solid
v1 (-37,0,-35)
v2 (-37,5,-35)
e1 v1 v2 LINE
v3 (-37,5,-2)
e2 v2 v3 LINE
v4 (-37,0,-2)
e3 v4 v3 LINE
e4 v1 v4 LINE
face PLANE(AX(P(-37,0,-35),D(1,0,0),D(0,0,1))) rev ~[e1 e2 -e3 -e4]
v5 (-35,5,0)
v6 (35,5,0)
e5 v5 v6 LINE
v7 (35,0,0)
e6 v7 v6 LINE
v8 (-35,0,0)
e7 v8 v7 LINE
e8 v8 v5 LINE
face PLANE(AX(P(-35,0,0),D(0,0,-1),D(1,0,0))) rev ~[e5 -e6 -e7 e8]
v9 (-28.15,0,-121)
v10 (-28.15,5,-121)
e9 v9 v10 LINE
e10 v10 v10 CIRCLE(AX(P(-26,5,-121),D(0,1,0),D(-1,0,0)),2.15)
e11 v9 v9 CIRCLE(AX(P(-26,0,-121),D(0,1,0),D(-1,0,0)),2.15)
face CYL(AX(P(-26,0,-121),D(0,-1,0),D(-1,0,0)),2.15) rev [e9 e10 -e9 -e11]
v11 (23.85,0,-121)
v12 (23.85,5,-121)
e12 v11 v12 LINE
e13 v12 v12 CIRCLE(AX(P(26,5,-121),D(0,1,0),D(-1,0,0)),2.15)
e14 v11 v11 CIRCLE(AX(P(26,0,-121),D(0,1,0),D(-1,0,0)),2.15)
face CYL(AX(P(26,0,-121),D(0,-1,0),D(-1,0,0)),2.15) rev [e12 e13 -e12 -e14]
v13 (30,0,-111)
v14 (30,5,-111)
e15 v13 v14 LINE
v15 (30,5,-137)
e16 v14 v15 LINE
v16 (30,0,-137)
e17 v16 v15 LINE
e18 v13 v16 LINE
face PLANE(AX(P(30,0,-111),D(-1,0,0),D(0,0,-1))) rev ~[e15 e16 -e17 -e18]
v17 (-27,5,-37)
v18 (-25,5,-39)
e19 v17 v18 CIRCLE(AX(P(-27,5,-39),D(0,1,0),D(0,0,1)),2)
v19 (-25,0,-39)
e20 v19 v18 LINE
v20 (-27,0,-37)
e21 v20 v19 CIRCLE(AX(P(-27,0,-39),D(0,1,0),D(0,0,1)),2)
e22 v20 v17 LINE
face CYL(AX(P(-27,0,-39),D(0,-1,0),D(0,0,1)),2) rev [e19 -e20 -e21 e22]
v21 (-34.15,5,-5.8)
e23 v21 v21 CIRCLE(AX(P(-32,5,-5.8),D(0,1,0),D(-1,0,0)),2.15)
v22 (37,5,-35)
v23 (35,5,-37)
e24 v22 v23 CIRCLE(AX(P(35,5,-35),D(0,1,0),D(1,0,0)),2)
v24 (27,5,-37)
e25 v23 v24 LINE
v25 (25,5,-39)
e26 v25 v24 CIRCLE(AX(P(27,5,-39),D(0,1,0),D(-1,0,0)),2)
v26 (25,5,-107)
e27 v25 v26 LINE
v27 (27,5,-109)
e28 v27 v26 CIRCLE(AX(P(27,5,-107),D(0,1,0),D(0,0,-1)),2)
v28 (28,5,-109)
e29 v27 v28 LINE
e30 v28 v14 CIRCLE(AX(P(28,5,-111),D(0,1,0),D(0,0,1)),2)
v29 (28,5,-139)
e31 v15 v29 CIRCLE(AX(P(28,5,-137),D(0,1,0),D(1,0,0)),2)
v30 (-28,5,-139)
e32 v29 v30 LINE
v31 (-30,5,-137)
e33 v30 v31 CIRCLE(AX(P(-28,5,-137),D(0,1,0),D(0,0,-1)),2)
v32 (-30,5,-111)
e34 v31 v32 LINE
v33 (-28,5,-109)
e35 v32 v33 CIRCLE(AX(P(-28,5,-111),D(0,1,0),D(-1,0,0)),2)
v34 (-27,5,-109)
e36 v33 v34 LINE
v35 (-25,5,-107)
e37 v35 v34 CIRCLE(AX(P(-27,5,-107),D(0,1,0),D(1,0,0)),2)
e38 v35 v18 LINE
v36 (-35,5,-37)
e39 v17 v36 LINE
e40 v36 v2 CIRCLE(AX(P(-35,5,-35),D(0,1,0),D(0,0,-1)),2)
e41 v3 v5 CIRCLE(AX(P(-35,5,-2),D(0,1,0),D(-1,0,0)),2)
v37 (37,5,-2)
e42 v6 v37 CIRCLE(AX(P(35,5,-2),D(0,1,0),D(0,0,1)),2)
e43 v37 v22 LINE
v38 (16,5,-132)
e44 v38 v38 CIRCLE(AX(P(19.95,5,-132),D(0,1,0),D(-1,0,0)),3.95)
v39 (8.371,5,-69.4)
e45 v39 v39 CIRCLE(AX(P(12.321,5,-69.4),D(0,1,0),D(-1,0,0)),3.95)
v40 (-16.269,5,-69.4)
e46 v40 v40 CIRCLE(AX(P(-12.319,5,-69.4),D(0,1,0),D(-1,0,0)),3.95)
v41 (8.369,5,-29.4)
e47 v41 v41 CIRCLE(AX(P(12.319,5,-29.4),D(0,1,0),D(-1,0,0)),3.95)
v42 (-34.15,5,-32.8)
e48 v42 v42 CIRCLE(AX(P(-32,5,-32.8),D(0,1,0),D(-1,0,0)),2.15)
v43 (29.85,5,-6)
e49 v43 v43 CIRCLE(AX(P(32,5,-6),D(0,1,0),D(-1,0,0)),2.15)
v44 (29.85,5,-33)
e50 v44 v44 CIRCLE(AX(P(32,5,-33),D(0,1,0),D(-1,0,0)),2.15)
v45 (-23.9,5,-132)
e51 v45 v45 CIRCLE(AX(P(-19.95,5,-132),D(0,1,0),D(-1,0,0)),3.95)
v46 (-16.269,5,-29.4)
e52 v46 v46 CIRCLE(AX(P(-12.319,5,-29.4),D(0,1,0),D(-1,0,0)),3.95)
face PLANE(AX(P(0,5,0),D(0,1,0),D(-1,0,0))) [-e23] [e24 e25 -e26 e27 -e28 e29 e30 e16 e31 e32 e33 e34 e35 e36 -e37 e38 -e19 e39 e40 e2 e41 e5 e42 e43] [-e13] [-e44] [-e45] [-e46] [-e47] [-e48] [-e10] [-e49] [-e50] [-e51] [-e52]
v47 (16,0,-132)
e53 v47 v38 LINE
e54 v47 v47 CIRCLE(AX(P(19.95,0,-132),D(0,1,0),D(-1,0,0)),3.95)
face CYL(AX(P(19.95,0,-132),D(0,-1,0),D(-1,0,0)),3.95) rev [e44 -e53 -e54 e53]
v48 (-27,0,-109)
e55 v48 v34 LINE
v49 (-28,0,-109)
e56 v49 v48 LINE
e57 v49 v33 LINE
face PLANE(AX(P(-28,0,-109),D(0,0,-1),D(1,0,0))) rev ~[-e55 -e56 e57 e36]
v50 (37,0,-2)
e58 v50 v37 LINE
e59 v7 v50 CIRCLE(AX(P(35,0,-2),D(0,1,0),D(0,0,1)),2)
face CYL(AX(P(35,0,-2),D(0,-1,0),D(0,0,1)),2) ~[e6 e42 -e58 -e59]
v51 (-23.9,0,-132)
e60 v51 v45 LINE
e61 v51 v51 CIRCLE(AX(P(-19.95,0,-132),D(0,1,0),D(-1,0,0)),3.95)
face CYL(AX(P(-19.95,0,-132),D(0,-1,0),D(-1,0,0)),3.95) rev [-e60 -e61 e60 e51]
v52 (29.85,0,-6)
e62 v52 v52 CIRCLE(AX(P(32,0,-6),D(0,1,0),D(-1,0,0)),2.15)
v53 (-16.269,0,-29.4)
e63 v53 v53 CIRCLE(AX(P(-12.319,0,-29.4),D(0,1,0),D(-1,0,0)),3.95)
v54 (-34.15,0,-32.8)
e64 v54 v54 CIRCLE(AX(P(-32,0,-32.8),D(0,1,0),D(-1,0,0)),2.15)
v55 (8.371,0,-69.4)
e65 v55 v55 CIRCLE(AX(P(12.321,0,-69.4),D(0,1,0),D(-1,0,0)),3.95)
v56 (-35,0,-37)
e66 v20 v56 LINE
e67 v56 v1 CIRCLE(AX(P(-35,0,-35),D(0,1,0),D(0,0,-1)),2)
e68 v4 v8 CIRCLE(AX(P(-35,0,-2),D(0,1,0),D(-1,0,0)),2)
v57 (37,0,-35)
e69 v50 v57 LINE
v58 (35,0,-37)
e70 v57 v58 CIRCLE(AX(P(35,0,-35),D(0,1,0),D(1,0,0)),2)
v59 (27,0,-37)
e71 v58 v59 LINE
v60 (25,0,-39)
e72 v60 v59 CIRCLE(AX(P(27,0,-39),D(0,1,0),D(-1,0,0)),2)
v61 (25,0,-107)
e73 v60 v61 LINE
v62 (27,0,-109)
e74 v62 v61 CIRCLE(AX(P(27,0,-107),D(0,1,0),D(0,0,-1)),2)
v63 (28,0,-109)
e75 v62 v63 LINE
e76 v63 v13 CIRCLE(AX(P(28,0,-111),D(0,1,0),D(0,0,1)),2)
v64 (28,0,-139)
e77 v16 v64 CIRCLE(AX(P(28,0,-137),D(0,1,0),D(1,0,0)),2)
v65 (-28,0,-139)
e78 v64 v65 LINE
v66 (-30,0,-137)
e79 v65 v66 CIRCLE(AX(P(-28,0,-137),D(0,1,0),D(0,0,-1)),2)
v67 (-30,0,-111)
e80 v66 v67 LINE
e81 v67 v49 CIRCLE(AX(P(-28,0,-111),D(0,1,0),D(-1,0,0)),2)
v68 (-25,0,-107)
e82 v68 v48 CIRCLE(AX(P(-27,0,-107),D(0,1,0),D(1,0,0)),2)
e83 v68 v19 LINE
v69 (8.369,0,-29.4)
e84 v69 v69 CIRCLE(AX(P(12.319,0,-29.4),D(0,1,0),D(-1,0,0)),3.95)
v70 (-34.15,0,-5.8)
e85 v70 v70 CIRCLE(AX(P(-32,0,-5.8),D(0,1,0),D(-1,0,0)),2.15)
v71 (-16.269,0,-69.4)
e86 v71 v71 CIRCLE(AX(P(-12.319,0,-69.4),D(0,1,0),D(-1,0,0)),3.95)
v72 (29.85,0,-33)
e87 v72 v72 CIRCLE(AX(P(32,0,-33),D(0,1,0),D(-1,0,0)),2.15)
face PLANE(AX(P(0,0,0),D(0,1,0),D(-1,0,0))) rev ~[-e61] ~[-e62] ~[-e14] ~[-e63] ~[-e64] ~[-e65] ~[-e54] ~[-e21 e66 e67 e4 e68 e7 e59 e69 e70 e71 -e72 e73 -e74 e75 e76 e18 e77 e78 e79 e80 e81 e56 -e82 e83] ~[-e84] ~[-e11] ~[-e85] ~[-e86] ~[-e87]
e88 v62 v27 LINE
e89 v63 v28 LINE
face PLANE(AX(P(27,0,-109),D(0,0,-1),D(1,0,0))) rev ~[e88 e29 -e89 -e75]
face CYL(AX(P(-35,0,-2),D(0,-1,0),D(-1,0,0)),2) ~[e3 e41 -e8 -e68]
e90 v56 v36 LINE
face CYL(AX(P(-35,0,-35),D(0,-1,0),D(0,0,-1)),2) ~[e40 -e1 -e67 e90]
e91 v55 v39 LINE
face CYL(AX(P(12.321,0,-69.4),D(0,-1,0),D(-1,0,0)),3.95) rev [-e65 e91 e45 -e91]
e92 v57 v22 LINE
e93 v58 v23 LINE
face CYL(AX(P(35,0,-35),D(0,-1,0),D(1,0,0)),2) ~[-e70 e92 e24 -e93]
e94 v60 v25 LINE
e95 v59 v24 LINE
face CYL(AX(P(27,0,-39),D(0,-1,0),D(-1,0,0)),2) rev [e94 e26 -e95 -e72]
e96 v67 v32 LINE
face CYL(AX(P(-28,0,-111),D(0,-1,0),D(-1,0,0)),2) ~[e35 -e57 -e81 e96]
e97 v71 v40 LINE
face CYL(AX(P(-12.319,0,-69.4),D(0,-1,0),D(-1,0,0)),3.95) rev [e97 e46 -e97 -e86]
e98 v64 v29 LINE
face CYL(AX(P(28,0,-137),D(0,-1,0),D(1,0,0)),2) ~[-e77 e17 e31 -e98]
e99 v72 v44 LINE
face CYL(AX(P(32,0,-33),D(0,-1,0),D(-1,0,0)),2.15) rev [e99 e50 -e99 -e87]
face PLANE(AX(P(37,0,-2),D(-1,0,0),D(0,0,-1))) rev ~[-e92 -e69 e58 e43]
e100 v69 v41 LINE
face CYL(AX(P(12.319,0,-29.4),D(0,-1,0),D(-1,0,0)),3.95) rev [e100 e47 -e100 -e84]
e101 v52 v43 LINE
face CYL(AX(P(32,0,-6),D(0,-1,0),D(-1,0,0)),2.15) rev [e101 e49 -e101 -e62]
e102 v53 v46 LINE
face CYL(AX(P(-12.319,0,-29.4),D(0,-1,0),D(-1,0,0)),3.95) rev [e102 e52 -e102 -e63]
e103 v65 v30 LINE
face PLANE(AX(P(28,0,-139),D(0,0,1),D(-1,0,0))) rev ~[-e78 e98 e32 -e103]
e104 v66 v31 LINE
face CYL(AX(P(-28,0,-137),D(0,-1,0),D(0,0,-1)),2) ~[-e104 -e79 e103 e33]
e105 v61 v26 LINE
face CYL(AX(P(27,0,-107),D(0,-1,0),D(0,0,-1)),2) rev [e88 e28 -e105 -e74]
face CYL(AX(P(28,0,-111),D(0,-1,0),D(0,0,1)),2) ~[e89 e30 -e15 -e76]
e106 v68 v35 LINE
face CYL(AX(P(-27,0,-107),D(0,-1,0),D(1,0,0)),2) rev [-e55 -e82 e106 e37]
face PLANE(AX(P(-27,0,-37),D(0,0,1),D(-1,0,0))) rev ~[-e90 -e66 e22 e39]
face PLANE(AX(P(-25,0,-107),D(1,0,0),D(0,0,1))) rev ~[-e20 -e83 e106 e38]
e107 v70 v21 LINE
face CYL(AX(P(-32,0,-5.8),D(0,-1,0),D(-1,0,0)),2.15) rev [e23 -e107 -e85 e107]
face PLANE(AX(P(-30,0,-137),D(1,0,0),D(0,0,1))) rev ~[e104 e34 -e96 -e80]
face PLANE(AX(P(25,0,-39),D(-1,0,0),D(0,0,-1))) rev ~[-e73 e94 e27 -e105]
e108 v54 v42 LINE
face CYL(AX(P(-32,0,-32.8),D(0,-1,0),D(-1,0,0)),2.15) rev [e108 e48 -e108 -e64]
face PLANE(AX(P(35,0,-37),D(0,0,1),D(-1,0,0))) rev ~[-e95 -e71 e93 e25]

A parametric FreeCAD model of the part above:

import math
import FreeCAD as App
import Part
import Sketcher
Q = App.Units.Quantity

doc = App.newDocument("Part")
params = doc.addObject("Spreadsheet::Sheet", "Params")
for row, (alias, value) in enumerate([
    ("sketch1_radius", "2 mm"),
    ("sketch1_diameter", "7.9 mm"),
    ("sketch1_diameter2", "4.3 mm"),
    ("pad1_length", "5 mm"),
], start=1):
    params.set(f"A{row}", alias)
    params.set(f"B{row}", "=" + value)
    params.setAlias(f"B{row}", alias)

body = doc.addObject("PartDesign::Body", "Body")

sketch1 = doc.addObject("Sketcher::SketchObject", "Sketch")
body.addObject(sketch1)
sketch1.AttachmentSupport = (doc.XZ_Plane, [""])
sketch1.MapMode = "FlatFace"
sketch1.addGeometry(Part.ArcOfCircle(Part.Circle(App.Vector(-35, -2, 0), App.Vector(0, 0, 1), 2), math.radians(90), math.radians(180)), False)
sketch1.addGeometry(Part.LineSegment(App.Vector(-35, 0, 0), App.Vector(35, 0, 0)), False)
sketch1.addGeometry(Part.ArcOfCircle(Part.Circle(App.Vector(35, -2, 0), App.Vector(0, 0, 1), 2), math.radians(0), math.radians(90)), False)
sketch1.addGeometry(Part.LineSegment(App.Vector(37, -2, 0), App.Vector(37, -35, 0)), False)
sketch1.addGeometry(Part.ArcOfCircle(Part.Circle(App.Vector(35, -35, 0), App.Vector(0, 0, 1), 2), math.radians(-90), math.radians(0)), False)
sketch1.addGeometry(Part.LineSegment(App.Vector(35, -37, 0), App.Vector(27, -37, 0)), False)
sketch1.addGeometry(Part.ArcOfCircle(Part.Circle(App.Vector(27, -39, 0), App.Vector(0, 0, 1), 2), math.radians(90), math.radians(180)), False)
sketch1.addGeometry(Part.LineSegment(App.Vector(25, -39, 0), App.Vector(25, -107, 0)), False)
sketch1.addGeometry(Part.ArcOfCircle(Part.Circle(App.Vector(27, -107, 0), App.Vector(0, 0, 1), 2), math.radians(180), math.radians(270)), False)
sketch1.addGeometry(Part.LineSegment(App.Vector(27, -109, 0), App.Vector(28, -109, 0)), False)
sketch1.addGeometry(Part.ArcOfCircle(Part.Circle(App.Vector(28, -111, 0), App.Vector(0, 0, 1), 2), math.radians(0), math.radians(90)), False)
sketch1.addGeometry(Part.LineSegment(App.Vector(30, -111, 0), App.Vector(30, -137, 0)), False)
sketch1.addGeometry(Part.ArcOfCircle(Part.Circle(App.Vector(28, -137, 0), App.Vector(0, 0, 1), 2), math.radians(-90), math.radians(0)), False)
sketch1.addGeometry(Part.LineSegment(App.Vector(28, -139, 0), App.Vector(-28, -139, 0)), False)
sketch1.addGeometry(Part.ArcOfCircle(Part.Circle(App.Vector(-28, -137, 0), App.Vector(0, 0, 1), 2), math.radians(180), math.radians(270)), False)
sketch1.addGeometry(Part.LineSegment(App.Vector(-30, -137, 0), App.Vector(-30, -111, 0)), False)
sketch1.addGeometry(Part.ArcOfCircle(Part.Circle(App.Vector(-28, -111, 0), App.Vector(0, 0, 1), 2), math.radians(90), math.radians(180)), False)
sketch1.addGeometry(Part.LineSegment(App.Vector(-28, -109, 0), App.Vector(-27, -109, 0)), False)
sketch1.addGeometry(Part.ArcOfCircle(Part.Circle(App.Vector(-27, -107, 0), App.Vector(0, 0, 1), 2), math.radians(-90), math.radians(0)), False)
sketch1.addGeometry(Part.LineSegment(App.Vector(-25, -107, 0), App.Vector(-25, -39, 0)), False)
sketch1.addGeometry(Part.ArcOfCircle(Part.Circle(App.Vector(-27, -39, 0), App.Vector(0, 0, 1), 2), math.radians(0), math.radians(90)), False)
sketch1.addGeometry(Part.LineSegment(App.Vector(-27, -37, 0), App.Vector(-35, -37, 0)), False)
sketch1.addGeometry(Part.ArcOfCircle(Part.Circle(App.Vector(-35, -35, 0), App.Vector(0, 0, 1), 2), math.radians(180), math.radians(270)), False)
sketch1.addGeometry(Part.LineSegment(App.Vector(-37, -35, 0), App.Vector(-37, -2, 0)), False)
sketch1.addGeometry(Part.Circle(App.Vector(19.95, -132, 0), App.Vector(0, 0, 1), 3.95), False)
sketch1.addGeometry(Part.Circle(App.Vector(26, -121, 0), App.Vector(0, 0, 1), 2.15), False)
sketch1.addGeometry(Part.Circle(App.Vector(-19.95, -132, 0), App.Vector(0, 0, 1), 3.95), False)
sketch1.addGeometry(Part.Circle(App.Vector(-26, -121, 0), App.Vector(0, 0, 1), 2.15), False)
sketch1.addGeometry(Part.Circle(App.Vector(12.321, -69.4, 0), App.Vector(0, 0, 1), 3.95), False)
sketch1.addGeometry(Part.Circle(App.Vector(32, -33, 0), App.Vector(0, 0, 1), 2.15), False)
sketch1.addGeometry(Part.Circle(App.Vector(32, -6, 0), App.Vector(0, 0, 1), 2.15), False)
sketch1.addGeometry(Part.Circle(App.Vector(12.319, -29.4, 0), App.Vector(0, 0, 1), 3.95), False)
sketch1.addGeometry(Part.Circle(App.Vector(-12.319, -69.4, 0), App.Vector(0, 0, 1), 3.95), False)
sketch1.addGeometry(Part.Circle(App.Vector(-12.319, -29.4, 0), App.Vector(0, 0, 1), 3.95), False)
sketch1.addGeometry(Part.Circle(App.Vector(-32, -32.8, 0), App.Vector(0, 0, 1), 2.15), False)
sketch1.addGeometry(Part.Circle(App.Vector(-32, -5.8, 0), App.Vector(0, 0, 1), 2.15), False)
sketch1.addConstraint(Sketcher.Constraint("Tangent", 0, 1, 1, 1))
sketch1.addConstraint(Sketcher.Constraint("Tangent", 1, 2, 2, 2))
sketch1.addConstraint(Sketcher.Constraint("Tangent", 2, 1, 3, 1))
sketch1.addConstraint(Sketcher.Constraint("Tangent", 3, 2, 4, 2))
sketch1.addConstraint(Sketcher.Constraint("Tangent", 4, 1, 5, 1))
sketch1.addConstraint(Sketcher.Constraint("Tangent", 5, 2, 6, 1))
sketch1.addConstraint(Sketcher.Constraint("Tangent", 6, 2, 7, 1))
sketch1.addConstraint(Sketcher.Constraint("Tangent", 7, 2, 8, 1))
sketch1.addConstraint(Sketcher.Constraint("Tangent", 8, 2, 9, 1))
sketch1.addConstraint(Sketcher.Constraint("Tangent", 9, 2, 10, 2))
sketch1.addConstraint(Sketcher.Constraint("Tangent", 10, 1, 11, 1))
sketch1.addConstraint(Sketcher.Constraint("Tangent", 11, 2, 12, 2))
sketch1.addConstraint(Sketcher.Constraint("Tangent", 12, 1, 13, 1))
sketch1.addConstraint(Sketcher.Constraint("Tangent", 13, 2, 14, 2))
sketch1.addConstraint(Sketcher.Constraint("Tangent", 14, 1, 15, 1))
sketch1.addConstraint(Sketcher.Constraint("Tangent", 15, 2, 16, 2))
sketch1.addConstraint(Sketcher.Constraint("Tangent", 16, 1, 17, 1))
sketch1.addConstraint(Sketcher.Constraint("Tangent", 17, 2, 18, 1))
sketch1.addConstraint(Sketcher.Constraint("Tangent", 18, 2, 19, 1))
sketch1.addConstraint(Sketcher.Constraint("Tangent", 19, 2, 20, 1))
sketch1.addConstraint(Sketcher.Constraint("Tangent", 20, 2, 21, 1))
sketch1.addConstraint(Sketcher.Constraint("Tangent", 21, 2, 22, 2))
sketch1.addConstraint(Sketcher.Constraint("Tangent", 22, 1, 23, 1))
sketch1.addConstraint(Sketcher.Constraint("Tangent", 23, 2, 0, 2))
sketch1.addConstraint(Sketcher.Constraint("Horizontal", 1))
sketch1.addConstraint(Sketcher.Constraint("Vertical", 3))
sketch1.addConstraint(Sketcher.Constraint("Horizontal", 5))
sketch1.addConstraint(Sketcher.Constraint("Vertical", 7))
sketch1.addConstraint(Sketcher.Constraint("Horizontal", 9))
sketch1.addConstraint(Sketcher.Constraint("Vertical", 11))
sketch1.addConstraint(Sketcher.Constraint("Horizontal", 13))
sketch1.addConstraint(Sketcher.Constraint("Vertical", 15))
sketch1.addConstraint(Sketcher.Constraint("Horizontal", 17))
sketch1.addConstraint(Sketcher.Constraint("Vertical", 19))
sketch1.addConstraint(Sketcher.Constraint("Horizontal", 21))
sketch1.addConstraint(Sketcher.Constraint("Vertical", 23))
sketch1.addConstraint(Sketcher.Constraint("Equal", 0, 2))
sketch1.addConstraint(Sketcher.Constraint("Equal", 2, 4))
sketch1.addConstraint(Sketcher.Constraint("Equal", 4, 6))
sketch1.addConstraint(Sketcher.Constraint("Equal", 6, 8))
sketch1.addConstraint(Sketcher.Constraint("Equal", 8, 10))
sketch1.addConstraint(Sketcher.Constraint("Equal", 10, 12))
sketch1.addConstraint(Sketcher.Constraint("Equal", 12, 14))
sketch1.addConstraint(Sketcher.Constraint("Equal", 14, 16))
sketch1.addConstraint(Sketcher.Constraint("Equal", 16, 18))
sketch1.addConstraint(Sketcher.Constraint("Equal", 18, 20))
sketch1.addConstraint(Sketcher.Constraint("Equal", 20, 22))
sketch1.addConstraint(Sketcher.Constraint("Equal", 24, 26))
sketch1.addConstraint(Sketcher.Constraint("Equal", 25, 27))
sketch1.addConstraint(Sketcher.Constraint("Equal", 26, 28))
sketch1.addConstraint(Sketcher.Constraint("Equal", 27, 29))
sketch1.addConstraint(Sketcher.Constraint("Equal", 29, 30))
sketch1.addConstraint(Sketcher.Constraint("Equal", 28, 31))
sketch1.addConstraint(Sketcher.Constraint("Equal", 31, 32))
sketch1.addConstraint(Sketcher.Constraint("Equal", 32, 33))
sketch1.addConstraint(Sketcher.Constraint("Equal", 30, 34))
sketch1.addConstraint(Sketcher.Constraint("Equal", 34, 35))
sketch1.addConstraint(Sketcher.Constraint("Symmetric", 0, 1, 1, 2, -1, 1))
sketch1.addConstraint(Sketcher.Constraint("Symmetric", 10, 3, 16, 3, -2))
sketch1.addConstraint(Sketcher.Constraint("Symmetric", 6, 3, 20, 3, -2))
sketch1.addConstraint(Sketcher.Constraint("Symmetric", 24, 3, 26, 3, -2))
sketch1.addConstraint(Sketcher.Constraint("Symmetric", 25, 3, 27, 3, -2))
sketch1.addConstraint(Sketcher.Constraint("Symmetric", 31, 3, 33, 3, -2))
sketch1.addConstraint(Sketcher.Constraint("Horizontal", 28, 3, 32, 3))
sketch1.addConstraint(Sketcher.Constraint("Vertical", 29, 3, 30, 3))
sketch1.addConstraint(Sketcher.Constraint("Vertical", 32, 3, 33, 3))
sketch1.addConstraint(Sketcher.Constraint("Vertical", 34, 3, 35, 3))
sketch1.addConstraint(Sketcher.Constraint("Radius", 0, Q("2 mm")))
sketch1.addConstraint(Sketcher.Constraint("Diameter", 24, Q("7.9 mm")))
sketch1.addConstraint(Sketcher.Constraint("Diameter", 25, Q("4.3 mm")))
sketch1.addConstraint(Sketcher.Constraint("DistanceX", -1, 1, 6, 3, Q("27 mm")))
sketch1.addConstraint(Sketcher.Constraint("DistanceY", 30, 3, -1, 1, Q("6 mm")))
sketch1.addConstraint(Sketcher.Constraint("DistanceX", -1, 1, 2, 1, Q("37 mm")))
sketch1.addConstraint(Sketcher.Constraint("DistanceY", 4, 1, -1, 1, Q("37 mm")))
sketch1.addConstraint(Sketcher.Constraint("DistanceX", -1, 1, 10, 1, Q("30 mm")))
sketch1.addConstraint(Sketcher.Constraint("DistanceY", 8, 3, 4, 3, Q("72 mm")))
sketch1.addConstraint(Sketcher.Constraint("DistanceY", 12, 3, 8, 3, Q("30 mm")))
sketch1.addConstraint(Sketcher.Constraint("DistanceY", 12, 3, 24, 3, Q("5 mm")))
sketch1.addConstraint(Sketcher.Constraint("DistanceX", 25, 3, 10, 3, Q("2 mm")))
sketch1.addConstraint(Sketcher.Constraint("DistanceY", 24, 3, 25, 3, Q("11 mm")))
sketch1.addConstraint(Sketcher.Constraint("DistanceY", 4, 3, 29, 3, Q("2 mm")))
sketch1.addConstraint(Sketcher.Constraint("DistanceX", 6, 3, 29, 3, Q("5 mm")))
sketch1.addConstraint(Sketcher.Constraint("DistanceY", 32, 3, 33, 3, Q("40 mm")))
sketch1.addConstraint(Sketcher.Constraint("DistanceX", 34, 3, 20, 3, Q("5 mm")))
sketch1.addConstraint(Sketcher.Constraint("DistanceY", 34, 3, 35, 3, Q("27 mm")))
sketch1.addConstraint(Sketcher.Constraint("DistanceY", 31, 3, -1, 1, Q("29.4 mm")))
sketch1.addConstraint(Sketcher.Constraint("DistanceY", 35, 3, -1, 1, Q("5.8 mm")))
sketch1.addConstraint(Sketcher.Constraint("DistanceX", 26, 3, 24, 3, Q("39.9 mm")))
sketch1.addConstraint(Sketcher.Constraint("DistanceX", 32, 3, 28, 3, Q("24.64 mm")))
sketch1.addConstraint(Sketcher.Constraint("DistanceX", -1, 1, 31, 3, Q("12.319 mm")))
sketch1.setExpression("Constraints[67]", "Params.sketch1_radius")
sketch1.setExpression("Constraints[68]", "Params.sketch1_diameter")
sketch1.setExpression("Constraints[69]", "Params.sketch1_diameter2")
pad1 = doc.addObject("PartDesign::Pad", "Pad")
body.addObject(pad1)
pad1.Profile = sketch1
pad1.setExpression("Length", "Params.pad1_length")
pad1.Reversed = True

doc.recompute()
